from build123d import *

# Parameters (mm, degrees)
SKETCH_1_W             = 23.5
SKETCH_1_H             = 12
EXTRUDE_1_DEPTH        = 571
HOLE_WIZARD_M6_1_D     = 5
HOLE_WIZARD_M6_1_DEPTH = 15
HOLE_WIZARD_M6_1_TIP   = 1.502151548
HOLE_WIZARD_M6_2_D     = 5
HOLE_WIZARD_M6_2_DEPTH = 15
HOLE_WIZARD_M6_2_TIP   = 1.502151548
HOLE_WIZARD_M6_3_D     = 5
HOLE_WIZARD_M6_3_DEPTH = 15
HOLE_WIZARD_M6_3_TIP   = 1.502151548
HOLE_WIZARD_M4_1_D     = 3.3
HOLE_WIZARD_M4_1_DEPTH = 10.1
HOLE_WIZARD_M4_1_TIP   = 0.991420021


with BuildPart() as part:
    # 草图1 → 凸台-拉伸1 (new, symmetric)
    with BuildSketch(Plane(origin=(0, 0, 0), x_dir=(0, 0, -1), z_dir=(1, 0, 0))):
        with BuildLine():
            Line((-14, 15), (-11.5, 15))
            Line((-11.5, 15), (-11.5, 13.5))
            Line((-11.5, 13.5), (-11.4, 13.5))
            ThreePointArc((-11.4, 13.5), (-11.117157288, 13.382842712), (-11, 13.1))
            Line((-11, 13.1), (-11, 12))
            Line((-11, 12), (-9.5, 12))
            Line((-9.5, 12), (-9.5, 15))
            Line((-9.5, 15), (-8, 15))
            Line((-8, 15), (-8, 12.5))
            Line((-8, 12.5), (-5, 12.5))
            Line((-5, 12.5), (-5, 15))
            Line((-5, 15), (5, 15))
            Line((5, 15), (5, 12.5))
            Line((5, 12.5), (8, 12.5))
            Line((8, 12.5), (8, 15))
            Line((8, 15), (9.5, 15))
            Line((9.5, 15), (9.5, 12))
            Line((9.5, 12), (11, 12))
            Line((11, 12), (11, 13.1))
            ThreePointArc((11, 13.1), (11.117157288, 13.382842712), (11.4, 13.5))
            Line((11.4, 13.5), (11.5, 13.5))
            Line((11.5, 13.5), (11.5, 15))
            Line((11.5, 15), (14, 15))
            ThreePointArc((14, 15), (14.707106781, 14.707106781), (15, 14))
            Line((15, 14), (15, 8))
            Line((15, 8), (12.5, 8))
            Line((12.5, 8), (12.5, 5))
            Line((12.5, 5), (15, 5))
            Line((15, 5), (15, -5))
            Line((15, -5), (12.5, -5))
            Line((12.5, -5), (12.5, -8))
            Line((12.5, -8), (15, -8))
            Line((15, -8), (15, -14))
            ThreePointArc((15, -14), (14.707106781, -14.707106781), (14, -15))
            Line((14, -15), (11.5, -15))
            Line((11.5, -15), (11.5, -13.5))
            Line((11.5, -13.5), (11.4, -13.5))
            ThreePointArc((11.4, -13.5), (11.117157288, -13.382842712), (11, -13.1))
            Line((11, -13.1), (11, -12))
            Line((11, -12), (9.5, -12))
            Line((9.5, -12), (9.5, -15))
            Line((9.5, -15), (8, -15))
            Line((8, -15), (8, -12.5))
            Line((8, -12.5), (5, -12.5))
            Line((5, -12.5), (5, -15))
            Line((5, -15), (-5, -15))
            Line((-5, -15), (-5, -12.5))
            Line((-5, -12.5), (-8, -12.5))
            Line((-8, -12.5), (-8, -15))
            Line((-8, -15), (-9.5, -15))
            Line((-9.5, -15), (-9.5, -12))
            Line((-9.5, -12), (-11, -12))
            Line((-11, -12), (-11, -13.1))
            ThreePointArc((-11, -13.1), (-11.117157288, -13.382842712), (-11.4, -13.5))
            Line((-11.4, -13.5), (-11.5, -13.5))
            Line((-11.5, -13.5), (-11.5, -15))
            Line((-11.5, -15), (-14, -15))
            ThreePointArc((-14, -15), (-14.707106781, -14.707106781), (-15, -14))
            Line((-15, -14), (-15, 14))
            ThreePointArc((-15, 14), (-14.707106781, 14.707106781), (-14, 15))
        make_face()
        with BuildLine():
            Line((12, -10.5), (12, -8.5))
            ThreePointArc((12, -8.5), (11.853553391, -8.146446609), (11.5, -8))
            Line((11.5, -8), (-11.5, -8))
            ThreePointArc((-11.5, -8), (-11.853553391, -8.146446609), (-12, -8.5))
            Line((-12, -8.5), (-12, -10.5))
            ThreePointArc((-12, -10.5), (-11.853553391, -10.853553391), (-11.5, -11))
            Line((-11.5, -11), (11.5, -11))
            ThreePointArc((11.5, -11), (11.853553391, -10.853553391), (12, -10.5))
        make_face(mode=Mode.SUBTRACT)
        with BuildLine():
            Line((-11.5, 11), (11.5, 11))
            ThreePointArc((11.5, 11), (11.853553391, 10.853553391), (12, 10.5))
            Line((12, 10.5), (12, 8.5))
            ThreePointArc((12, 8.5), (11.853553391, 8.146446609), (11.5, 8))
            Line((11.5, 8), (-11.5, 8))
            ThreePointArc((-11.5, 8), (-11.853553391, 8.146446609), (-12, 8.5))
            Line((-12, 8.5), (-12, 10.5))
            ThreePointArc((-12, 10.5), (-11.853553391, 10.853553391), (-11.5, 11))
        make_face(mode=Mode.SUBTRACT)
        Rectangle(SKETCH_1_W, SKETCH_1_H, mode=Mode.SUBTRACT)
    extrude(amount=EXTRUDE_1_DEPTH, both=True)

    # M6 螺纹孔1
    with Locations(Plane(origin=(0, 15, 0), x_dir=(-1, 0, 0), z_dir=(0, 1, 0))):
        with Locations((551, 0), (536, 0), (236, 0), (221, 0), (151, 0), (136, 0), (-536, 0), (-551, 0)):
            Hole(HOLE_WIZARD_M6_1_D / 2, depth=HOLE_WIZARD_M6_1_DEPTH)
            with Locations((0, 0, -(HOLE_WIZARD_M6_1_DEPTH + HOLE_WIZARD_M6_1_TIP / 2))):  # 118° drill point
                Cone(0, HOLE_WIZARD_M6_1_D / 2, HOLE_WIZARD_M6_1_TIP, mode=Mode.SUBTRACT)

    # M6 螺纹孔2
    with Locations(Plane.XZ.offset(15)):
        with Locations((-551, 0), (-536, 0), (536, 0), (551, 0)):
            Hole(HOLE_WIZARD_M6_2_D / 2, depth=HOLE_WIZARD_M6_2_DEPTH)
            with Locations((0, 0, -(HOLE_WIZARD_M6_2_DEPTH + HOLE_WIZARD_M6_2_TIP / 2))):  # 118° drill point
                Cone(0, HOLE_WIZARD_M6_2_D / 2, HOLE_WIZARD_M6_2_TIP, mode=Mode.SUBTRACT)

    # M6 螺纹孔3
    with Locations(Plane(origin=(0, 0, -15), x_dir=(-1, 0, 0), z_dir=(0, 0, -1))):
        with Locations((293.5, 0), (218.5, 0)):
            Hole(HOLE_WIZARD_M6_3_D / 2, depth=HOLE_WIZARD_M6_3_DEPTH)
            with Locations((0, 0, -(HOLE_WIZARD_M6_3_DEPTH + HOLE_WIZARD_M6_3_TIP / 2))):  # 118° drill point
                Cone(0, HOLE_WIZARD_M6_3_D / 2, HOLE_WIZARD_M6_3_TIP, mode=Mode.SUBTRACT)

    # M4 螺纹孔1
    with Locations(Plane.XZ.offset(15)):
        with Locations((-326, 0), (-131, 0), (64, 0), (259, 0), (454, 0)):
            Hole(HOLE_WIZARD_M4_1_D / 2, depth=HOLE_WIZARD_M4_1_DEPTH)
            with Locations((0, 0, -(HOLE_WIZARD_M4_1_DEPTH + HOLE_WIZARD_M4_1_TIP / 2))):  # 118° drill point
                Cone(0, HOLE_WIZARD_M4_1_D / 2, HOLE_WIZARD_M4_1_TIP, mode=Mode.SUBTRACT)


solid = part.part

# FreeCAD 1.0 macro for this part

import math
import FreeCAD as App
import Part
import Sketcher
from FreeCAD import Vector

doc = App.newDocument("Part")
body = doc.addObject("PartDesign::Body", "Body")

# Sketch on YZ plane
sketch1 = doc.addObject("Sketcher::SketchObject", "Sketch")
body.addObject(sketch1)
sketch1.AttachmentSupport = (doc.YZ_Plane, [""])
sketch1.MapMode = "FlatFace"
sketch1.addGeometry([
    Part.LineSegment(Vector(15, 11.5, 0), Vector(15, 14, 0)),  # 0
    Part.ArcOfCircle(Part.Circle(Vector(14, 14, 0), Vector(0, 0, 1), 1), math.radians(0), math.radians(90)),  # 1
    Part.LineSegment(Vector(14, 15, 0), Vector(-14, 15, 0)),  # 2
    Part.ArcOfCircle(Part.Circle(Vector(-14, 14, 0), Vector(0, 0, 1), 1), math.radians(90), math.radians(180)),  # 3
    Part.LineSegment(Vector(-15, 14, 0), Vector(-15, 11.5, 0)),  # 4
    Part.LineSegment(Vector(-15, 11.5, 0), Vector(-13.5, 11.5, 0)),  # 5
    Part.LineSegment(Vector(-13.5, 11.5, 0), Vector(-13.5, 11.4, 0)),  # 6
    Part.ArcOfCircle(Part.Circle(Vector(-13.1, 11.4, 0), Vector(0, 0, 1), 0.4), math.radians(-180), math.radians(-90)),  # 7
    Part.LineSegment(Vector(-13.1, 11, 0), Vector(-12, 11, 0)),  # 8
    Part.LineSegment(Vector(-12, 11, 0), Vector(-12, 9.5, 0)),  # 9
    Part.LineSegment(Vector(-12, 9.5, 0), Vector(-15, 9.5, 0)),  # 10
    Part.LineSegment(Vector(-15, 9.5, 0), Vector(-15, 8, 0)),  # 11
    Part.LineSegment(Vector(-15, 8, 0), Vector(-12.5, 8, 0)),  # 12
    Part.LineSegment(Vector(-12.5, 8, 0), Vector(-12.5, 5, 0)),  # 13
    Part.LineSegment(Vector(-12.5, 5, 0), Vector(-15, 5, 0)),  # 14
    Part.LineSegment(Vector(-15, 5, 0), Vector(-15, -5, 0)),  # 15
    Part.LineSegment(Vector(-15, -5, 0), Vector(-12.5, -5, 0)),  # 16
    Part.LineSegment(Vector(-12.5, -5, 0), Vector(-12.5, -8, 0)),  # 17
    Part.LineSegment(Vector(-12.5, -8, 0), Vector(-15, -8, 0)),  # 18
    Part.LineSegment(Vector(-15, -8, 0), Vector(-15, -9.5, 0)),  # 19
    Part.LineSegment(Vector(-15, -9.5, 0), Vector(-12, -9.5, 0)),  # 20
    Part.LineSegment(Vector(-12, -9.5, 0), Vector(-12, -11, 0)),  # 21
    Part.LineSegment(Vector(-12, -11, 0), Vector(-13.1, -11, 0)),  # 22
    Part.ArcOfCircle(Part.Circle(Vector(-13.1, -11.4, 0), Vector(0, 0, 1), 0.4), math.radians(90), math.radians(180)),  # 23
    Part.LineSegment(Vector(-13.5, -11.4, 0), Vector(-13.5, -11.5, 0)),  # 24
    Part.LineSegment(Vector(-13.5, -11.5, 0), Vector(-15, -11.5, 0)),  # 25
    Part.LineSegment(Vector(-15, -11.5, 0), Vector(-15, -14, 0)),  # 26
    Part.ArcOfCircle(Part.Circle(Vector(-14, -14, 0), Vector(0, 0, 1), 1), math.radians(-180), math.radians(-90)),  # 27
    Part.LineSegment(Vector(-14, -15, 0), Vector(-8, -15, 0)),  # 28
    Part.LineSegment(Vector(-8, -15, 0), Vector(-8, -12.5, 0)),  # 29
    Part.LineSegment(Vector(-8, -12.5, 0), Vector(-5, -12.5, 0)),  # 30
    Part.LineSegment(Vector(-5, -12.5, 0), Vector(-5, -15, 0)),  # 31
    Part.LineSegment(Vector(-5, -15, 0), Vector(5, -15, 0)),  # 32
    Part.LineSegment(Vector(5, -15, 0), Vector(5, -12.5, 0)),  # 33
    Part.LineSegment(Vector(5, -12.5, 0), Vector(8, -12.5, 0)),  # 34
    Part.LineSegment(Vector(8, -12.5, 0), Vector(8, -15, 0)),  # 35
    Part.LineSegment(Vector(8, -15, 0), Vector(14, -15, 0)),  # 36
    Part.ArcOfCircle(Part.Circle(Vector(14, -14, 0), Vector(0, 0, 1), 1), math.radians(-90), math.radians(0)),  # 37
    Part.LineSegment(Vector(15, -14, 0), Vector(15, -11.5, 0)),  # 38
    Part.LineSegment(Vector(15, -11.5, 0), Vector(13.5, -11.5, 0)),  # 39
    Part.LineSegment(Vector(13.5, -11.5, 0), Vector(13.5, -11.4, 0)),  # 40
    Part.ArcOfCircle(Part.Circle(Vector(13.1, -11.4, 0), Vector(0, 0, 1), 0.4), math.radians(0), math.radians(90)),  # 41
    Part.LineSegment(Vector(13.1, -11, 0), Vector(12, -11, 0)),  # 42
    Part.LineSegment(Vector(12, -11, 0), Vector(12, -9.5, 0)),  # 43
    Part.LineSegment(Vector(12, -9.5, 0), Vector(15, -9.5, 0)),  # 44
    Part.LineSegment(Vector(15, -9.5, 0), Vector(15, -8, 0)),  # 45
    Part.LineSegment(Vector(15, -8, 0), Vector(12.5, -8, 0)),  # 46
    Part.LineSegment(Vector(12.5, -8, 0), Vector(12.5, -5, 0)),  # 47
    Part.LineSegment(Vector(12.5, -5, 0), Vector(15, -5, 0)),  # 48
    Part.LineSegment(Vector(15, -5, 0), Vector(15, 5, 0)),  # 49
    Part.LineSegment(Vector(15, 5, 0), Vector(12.5, 5, 0)),  # 50
    Part.LineSegment(Vector(12.5, 5, 0), Vector(12.5, 8, 0)),  # 51
    Part.LineSegment(Vector(12.5, 8, 0), Vector(15, 8, 0)),  # 52
    Part.LineSegment(Vector(15, 8, 0), Vector(15, 9.5, 0)),  # 53
    Part.LineSegment(Vector(15, 9.5, 0), Vector(12, 9.5, 0)),  # 54
    Part.LineSegment(Vector(12, 9.5, 0), Vector(12, 11, 0)),  # 55
    Part.LineSegment(Vector(12, 11, 0), Vector(13.1, 11, 0)),  # 56
    Part.ArcOfCircle(Part.Circle(Vector(13.1, 11.4, 0), Vector(0, 0, 1), 0.4), math.radians(-90), math.radians(0)),  # 57
    Part.LineSegment(Vector(13.5, 11.4, 0), Vector(13.5, 11.5, 0)),  # 58
    Part.LineSegment(Vector(13.5, 11.5, 0), Vector(15, 11.5, 0)),  # 59
    Part.ArcOfCircle(Part.Circle(Vector(-10.5, -11.5, 0), Vector(0, 0, 1), 0.5), math.radians(180), math.radians(270)),  # 60
    Part.LineSegment(Vector(-11, -11.5, 0), Vector(-11, 11.5, 0)),  # 61
    Part.ArcOfCircle(Part.Circle(Vector(-10.5, 11.5, 0), Vector(0, 0, 1), 0.5), math.radians(90), math.radians(180)),  # 62
    Part.LineSegment(Vector(-10.5, 12, 0), Vector(-8.5, 12, 0)),  # 63
    Part.ArcOfCircle(Part.Circle(Vector(-8.5, 11.5, 0), Vector(0, 0, 1), 0.5), math.radians(0), math.radians(90)),  # 64
    Part.LineSegment(Vector(-8, 11.5, 0), Vector(-8, -11.5, 0)),  # 65
    Part.ArcOfCircle(Part.Circle(Vector(-8.5, -11.5, 0), Vector(0, 0, 1), 0.5), math.radians(-90), math.radians(0)),  # 66
    Part.LineSegment(Vector(-8.5, -12, 0), Vector(-10.5, -12, 0)),  # 67
    Part.LineSegment(Vector(-6, 11.75, 0), Vector(6, 11.75, 0)),  # 68
    Part.LineSegment(Vector(6, 11.75, 0), Vector(6, -11.75, 0)),  # 69
    Part.LineSegment(Vector(6, -11.75, 0), Vector(-6, -11.75, 0)),  # 70
    Part.LineSegment(Vector(-6, -11.75, 0), Vector(-6, 11.75, 0)),  # 71
    Part.LineSegment(Vector(11, 11.5, 0), Vector(11, -11.5, 0)),  # 72
    Part.ArcOfCircle(Part.Circle(Vector(10.5, -11.5, 0), Vector(0, 0, 1), 0.5), math.radians(-90), math.radians(0)),  # 73
    Part.LineSegment(Vector(10.5, -12, 0), Vector(8.5, -12, 0)),  # 74
    Part.ArcOfCircle(Part.Circle(Vector(8.5, -11.5, 0), Vector(0, 0, 1), 0.5), math.radians(180), math.radians(270)),  # 75
    Part.LineSegment(Vector(8, -11.5, 0), Vector(8, 11.5, 0)),  # 76
    Part.ArcOfCircle(Part.Circle(Vector(8.5, 11.5, 0), Vector(0, 0, 1), 0.5), math.radians(90), math.radians(180)),  # 77
    Part.LineSegment(Vector(8.5, 12, 0), Vector(10.5, 12, 0)),  # 78
    Part.ArcOfCircle(Part.Circle(Vector(10.5, 11.5, 0), Vector(0, 0, 1), 0.5), math.radians(0), math.radians(90)),  # 79
], False)
sketch1.addConstraint([
    Sketcher.Constraint("Tangent", 0, 2, 1, 1),
    Sketcher.Constraint("Tangent", 1, 2, 2, 1),
    Sketcher.Constraint("Tangent", 2, 2, 3, 1),
    Sketcher.Constraint("Tangent", 3, 2, 4, 1),
    Sketcher.Constraint("Coincident", 4, 2, 5, 1),
    Sketcher.Constraint("Coincident", 5, 2, 6, 1),
    Sketcher.Constraint("Tangent", 6, 2, 7, 1),
    Sketcher.Constraint("Tangent", 7, 2, 8, 1),
    Sketcher.Constraint("Coincident", 8, 2, 9, 1),
    Sketcher.Constraint("Coincident", 9, 2, 10, 1),
    Sketcher.Constraint("Coincident", 10, 2, 11, 1),
    Sketcher.Constraint("Coincident", 11, 2, 12, 1),
    Sketcher.Constraint("Coincident", 12, 2, 13, 1),
    Sketcher.Constraint("Coincident", 13, 2, 14, 1),
    Sketcher.Constraint("Coincident", 14, 2, 15, 1),
    Sketcher.Constraint("Coincident", 15, 2, 16, 1),
    Sketcher.Constraint("Coincident", 16, 2, 17, 1),
    Sketcher.Constraint("Coincident", 17, 2, 18, 1),
    Sketcher.Constraint("Coincident", 18, 2, 19, 1),
    Sketcher.Constraint("Coincident", 19, 2, 20, 1),
    Sketcher.Constraint("Coincident", 20, 2, 21, 1),
    Sketcher.Constraint("Coincident", 21, 2, 22, 1),
    Sketcher.Constraint("Tangent", 22, 2, 23, 1),
    Sketcher.Constraint("Tangent", 23, 2, 24, 1),
    Sketcher.Constraint("Coincident", 24, 2, 25, 1),
    Sketcher.Constraint("Coincident", 25, 2, 26, 1),
    Sketcher.Constraint("Tangent", 26, 2, 27, 1),
    Sketcher.Constraint("Tangent", 27, 2, 28, 1),
    Sketcher.Constraint("Coincident", 28, 2, 29, 1),
    Sketcher.Constraint("Coincident", 29, 2, 30, 1),
    Sketcher.Constraint("Coincident", 30, 2, 31, 1),
    Sketcher.Constraint("Coincident", 31, 2, 32, 1),
    Sketcher.Constraint("Coincident", 32, 2, 33, 1),
    Sketcher.Constraint("Coincident", 33, 2, 34, 1),
    Sketcher.Constraint("Coincident", 34, 2, 35, 1),
    Sketcher.Constraint("Coincident", 35, 2, 36, 1),
    Sketcher.Constraint("Tangent", 36, 2, 37, 1),
    Sketcher.Constraint("Tangent", 37, 2, 38, 1),
    Sketcher.Constraint("Coincident", 38, 2, 39, 1),
    Sketcher.Constraint("Coincident", 39, 2, 40, 1),
    Sketcher.Constraint("Tangent", 40, 2, 41, 1),
    Sketcher.Constraint("Tangent", 41, 2, 42, 1),
    Sketcher.Constraint("Coincident", 42, 2, 43, 1),
    Sketcher.Constraint("Coincident", 43, 2, 44, 1),
    Sketcher.Constraint("Coincident", 44, 2, 45, 1),
    Sketcher.Constraint("Coincident", 45, 2, 46, 1),
    Sketcher.Constraint("Coincident", 46, 2, 47, 1),
    Sketcher.Constraint("Coincident", 47, 2, 48, 1),
    Sketcher.Constraint("Coincident", 48, 2, 49, 1),
    Sketcher.Constraint("Coincident", 49, 2, 50, 1),
    Sketcher.Constraint("Coincident", 50, 2, 51, 1),
    Sketcher.Constraint("Coincident", 51, 2, 52, 1),
    Sketcher.Constraint("Coincident", 52, 2, 53, 1),
    Sketcher.Constraint("Coincident", 53, 2, 54, 1),
    Sketcher.Constraint("Coincident", 54, 2, 55, 1),
    Sketcher.Constraint("Coincident", 55, 2, 56, 1),
    Sketcher.Constraint("Tangent", 56, 2, 57, 1),
    Sketcher.Constraint("Tangent", 57, 2, 58, 1),
    Sketcher.Constraint("Coincident", 58, 2, 59, 1),
    Sketcher.Constraint("Coincident", 59, 2, 0, 1),
    Sketcher.Constraint("Tangent", 60, 1, 61, 1),
    Sketcher.Constraint("Tangent", 61, 2, 62, 2),
    Sketcher.Constraint("Tangent", 62, 1, 63, 1),
    Sketcher.Constraint("Tangent", 63, 2, 64, 2),
    Sketcher.Constraint("Tangent", 64, 1, 65, 1),
    Sketcher.Constraint("Tangent", 65, 2, 66, 2),
    Sketcher.Constraint("Tangent", 66, 1, 67, 1),
    Sketcher.Constraint("Tangent", 67, 2, 60, 2),
    Sketcher.Constraint("Coincident", 68, 2, 69, 1),
    Sketcher.Constraint("Coincident", 69, 2, 70, 1),
    Sketcher.Constraint("Coincident", 70, 2, 71, 1),
    Sketcher.Constraint("Coincident", 71, 2, 68, 1),
    Sketcher.Constraint("Tangent", 72, 2, 73, 2),
    Sketcher.Constraint("Tangent", 73, 1, 74, 1),
    Sketcher.Constraint("Tangent", 74, 2, 75, 2),
    Sketcher.Constraint("Tangent", 75, 1, 76, 1),
    Sketcher.Constraint("Tangent", 76, 2, 77, 2),
    Sketcher.Constraint("Tangent", 77, 1, 78, 1),
    Sketcher.Constraint("Tangent", 78, 2, 79, 2),
    Sketcher.Constraint("Tangent", 79, 1, 72, 1),
    Sketcher.Constraint("Vertical", 0),
    Sketcher.Constraint("Horizontal", 2),
    Sketcher.Constraint("Vertical", 4),
    Sketcher.Constraint("Horizontal", 5),
    Sketcher.Constraint("Vertical", 6),
    Sketcher.Constraint("Horizontal", 8),
    Sketcher.Constraint("Vertical", 9),
    Sketcher.Constraint("Horizontal", 10),
    Sketcher.Constraint("Vertical", 11),
    Sketcher.Constraint("Horizontal", 12),
    Sketcher.Constraint("Vertical", 13),
    Sketcher.Constraint("Horizontal", 14),
    Sketcher.Constraint("Vertical", 15),
    Sketcher.Constraint("Horizontal", 16),
    Sketcher.Constraint("Vertical", 17),
    Sketcher.Constraint("Horizontal", 18),
    Sketcher.Constraint("Vertical", 19),
    Sketcher.Constraint("Horizontal", 20),
    Sketcher.Constraint("Vertical", 21),
    Sketcher.Constraint("Horizontal", 22),
    Sketcher.Constraint("Vertical", 24),
    Sketcher.Constraint("Horizontal", 25),
    Sketcher.Constraint("Vertical", 26),
    Sketcher.Constraint("Horizontal", 28),
    Sketcher.Constraint("Vertical", 29),
    Sketcher.Constraint("Horizontal", 30),
    Sketcher.Constraint("Vertical", 31),
    Sketcher.Constraint("Horizontal", 32),
    Sketcher.Constraint("Vertical", 33),
    Sketcher.Constraint("Horizontal", 34),
    Sketcher.Constraint("Vertical", 35),
    Sketcher.Constraint("Horizontal", 36),
    Sketcher.Constraint("Vertical", 38),
    Sketcher.Constraint("Horizontal", 39),
    Sketcher.Constraint("Vertical", 40),
    Sketcher.Constraint("Horizontal", 42),
    Sketcher.Constraint("Vertical", 43),
    Sketcher.Constraint("Horizontal", 44),
    Sketcher.Constraint("Vertical", 45),
    Sketcher.Constraint("Horizontal", 46),
    Sketcher.Constraint("Vertical", 47),
    Sketcher.Constraint("Horizontal", 48),
    Sketcher.Constraint("Vertical", 49),
    Sketcher.Constraint("Horizontal", 50),
    Sketcher.Constraint("Vertical", 51),
    Sketcher.Constraint("Horizontal", 52),
    Sketcher.Constraint("Vertical", 53),
    Sketcher.Constraint("Horizontal", 54),
    Sketcher.Constraint("Vertical", 55),
    Sketcher.Constraint("Horizontal", 56),
    Sketcher.Constraint("Vertical", 58),
    Sketcher.Constraint("Horizontal", 59),
    Sketcher.Constraint("Vertical", 61),
    Sketcher.Constraint("Horizontal", 63),
    Sketcher.Constraint("Vertical", 65),
    Sketcher.Constraint("Horizontal", 67),
    Sketcher.Constraint("Horizontal", 68),
    Sketcher.Constraint("Vertical", 69),
    Sketcher.Constraint("Horizontal", 70),
    Sketcher.Constraint("Vertical", 71),
    Sketcher.Constraint("Vertical", 72),
    Sketcher.Constraint("Horizontal", 74),
    Sketcher.Constraint("Vertical", 76),
    Sketcher.Constraint("Horizontal", 78),
    Sketcher.Constraint("Equal", 1, 3),
    Sketcher.Constraint("Equal", 7, 23),
    Sketcher.Constraint("Equal", 3, 27),
    Sketcher.Constraint("Equal", 27, 37),
    Sketcher.Constraint("Equal", 23, 41),
    Sketcher.Constraint("Equal", 41, 57),
    Sketcher.Constraint("Equal", 60, 62),
    Sketcher.Constraint("Equal", 62, 64),
    Sketcher.Constraint("Equal", 64, 66),
    Sketcher.Constraint("Equal", 66, 73),
    Sketcher.Constraint("Equal", 73, 75),
    Sketcher.Constraint("Equal", 75, 77),
    Sketcher.Constraint("Equal", 77, 79),
    Sketcher.Constraint("Symmetric", 1, 3, 27, 3, -1, 1),
    Sketcher.Constraint("Symmetric", 3, 3, 37, 3, -1, 1),
    Sketcher.Constraint("Symmetric", 7, 3, 41, 3, -1, 1),
    Sketcher.Constraint("Symmetric", 23, 3, 57, 3, -1, 1),
    Sketcher.Constraint("Symmetric", 62, 3, 73, 3, -1, 1),
    Sketcher.Constraint("Symmetric", 66, 3, 77, 3, -1, 1),
    Sketcher.Constraint("Symmetric", 9, 2, 43, 2, -1, 1),
    Sketcher.Constraint("Symmetric", 11, 2, 45, 2, -1, 1),
    Sketcher.Constraint("Symmetric", 13, 2, 47, 2, -1, 1),
    Sketcher.Constraint("Symmetric", 15, 2, 49, 2, -1, 1),
    Sketcher.Constraint("Symmetric", 17, 2, 51, 2, -1, 1),
    Sketcher.Constraint("Symmetric", 19, 2, 53, 2, -1, 1),
    Sketcher.Constraint("Symmetric", 68, 2, 70, 2, -1, 1),
    Sketcher.Constraint("Symmetric", 23, 3, 41, 3, -2),
    Sketcher.Constraint("Symmetric", 30, 2, 33, 2, -2),
    Sketcher.Constraint("Symmetric", 25, 2, 38, 2, -2),
    Sketcher.Constraint("Symmetric", 20, 2, 43, 2, -2),
    Sketcher.Constraint("Symmetric", 18, 2, 45, 2, -2),
    Sketcher.Constraint("Symmetric", 16, 2, 47, 2, -2),
    Sketcher.Constraint("Horizontal", 66, 3, 73, 3),
    Sketcher.Constraint("Horizontal", 79, 3, 4, 2),
    Sketcher.Constraint("Horizontal", 75, 3, 24, 2),
    Sketcher.Constraint("Horizontal", 28, 2, 31, 2),
    Sketcher.Constraint("Horizontal", 5, 2, 58, 2),
    Sketcher.Constraint("Vertical", 4, 2, 10, 2),
    Sketcher.Constraint("Vertical", 11, 2, 14, 2),
    Sketcher.Constraint("Vertical", 43, 2, 54, 2),
    Sketcher.Constraint("Vertical", 29, 2, 64, 1),
    Sketcher.Constraint("Vertical", 35, 2, 75, 1),
    Sketcher.Constraint("Equal", 20, 30),
    Sketcher.Constraint("Equal", 52, 0),
    Sketcher.Constraint("Equal", 59, 9),
    Sketcher.Constraint("Equal", 9, 11),
    Sketcher.Constraint("Equal", 54, 13),
    Sketcher.Constraint("Equal", 32, 15),
    Sketcher.Constraint("Equal", 26, 29),
    Sketcher.Constraint("Radius", 1, 1.0),
    Sketcher.Constraint("Radius", 7, 0.4),
    Sketcher.Constraint("Radius", 60, 0.5),
    Sketcher.Constraint("DistanceX", 2, 2, 2, 1, 28.0),
    Sketcher.Constraint("DistanceX", 10, 2, 10, 1, 3.0),
    Sketcher.Constraint("DistanceX", 28, 1, 28, 2, 6.0),
    Sketcher.Constraint("DistanceX", 63, 1, 63, 2, 2.0),
    Sketcher.Constraint("DistanceX", 68, 1, 68, 2, 12.0),
    Sketcher.Constraint("DistanceY", 61, 1, 61, 2, 23.0),
    Sketcher.Constraint("DistanceX", 5, 1, 5, 2, 1.5),
    Sketcher.Constraint("DistanceX", 12, 1, 12, 2, 2.5),
    Sketcher.Constraint("DistanceY", 69, 2, 69, 1, 23.5),
])
pad1 = doc.addObject("PartDesign::Pad", "Pad")
body.addObject(pad1)
pad1.Profile = sketch1
pad1.Length = 1142
pad1.Midplane = True

# Sketch on XZ plane
sketch2 = doc.addObject("Sketcher::SketchObject", "Sketch001")
body.addObject(sketch2)
sketch2.AttachmentSupport = (doc.XZ_Plane, [""])
sketch2.MapMode = "FlatFace"
sketch2.AttachmentOffset = App.Placement(Vector(0, 0, -15), App.Rotation())
sketch2.addGeometry([
    Part.Circle(Vector(-551, 0, 0), Vector(0, 0, 1), 2.5),  # 0
    Part.Circle(Vector(-536, 0, 0), Vector(0, 0, 1), 2.5),  # 1
    Part.Circle(Vector(-236, 0, 0), Vector(0, 0, 1), 2.5),  # 2
    Part.Circle(Vector(-221, 0, 0), Vector(0, 0, 1), 2.5),  # 3
    Part.Circle(Vector(-151, 0, 0), Vector(0, 0, 1), 2.5),  # 4
    Part.Circle(Vector(-136, 0, 0), Vector(0, 0, 1), 2.5),  # 5
    Part.Circle(Vector(536, 0, 0), Vector(0, 0, 1), 2.5),  # 6
    Part.Circle(Vector(551, 0, 0), Vector(0, 0, 1), 2.5),  # 7
], False)
sketch2.addConstraint([
    Sketcher.Constraint("Equal", 0, 1),
    Sketcher.Constraint("Equal", 1, 2),
    Sketcher.Constraint("Equal", 2, 3),
    Sketcher.Constraint("Equal", 3, 4),
    Sketcher.Constraint("Equal", 4, 5),
    Sketcher.Constraint("Equal", 5, 6),
    Sketcher.Constraint("Equal", 6, 7),
    Sketcher.Constraint("Symmetric", 1, 3, 6, 3, -1, 1),
    Sketcher.Constraint("Symmetric", 0, 3, 7, 3, -1, 1),
    Sketcher.Constraint("PointOnObject", 0, 3, -1),
    Sketcher.Constraint("PointOnObject", 1, 3, -1),
    Sketcher.Constraint("PointOnObject", 2, 3, -1),
    Sketcher.Constraint("PointOnObject", 3, 3, -1),
    Sketcher.Constraint("PointOnObject", 4, 3, -1),
    Sketcher.Constraint("PointOnObject", 5, 3, -1),
    Sketcher.Constraint("Diameter", 0, 5.0),
    Sketcher.Constraint("DistanceX", 0, 3, -1, 1, 551.0),
    Sketcher.Constraint("DistanceX", 1, 3, -1, 1, 536.0),
    Sketcher.Constraint("DistanceX", 2, 3, -1, 1, 236.0),
    Sketcher.Constraint("DistanceX", 3, 3, -1, 1, 221.0),
    Sketcher.Constraint("DistanceX", 4, 3, -1, 1, 151.0),
    Sketcher.Constraint("DistanceX", 5, 3, -1, 1, 136.0),
])
doc.recompute()
hole = doc.addObject("PartDesign::Hole", "Hole")
body.addObject(hole)
hole.Profile = sketch2
hole.ThreadType = "None"
hole.Diameter = 5
hole.DepthType = "Dimension"
hole.Depth = 15
hole.DrillPoint = "Angled"
hole.DrillPointAngle = 118
hole.Reversed = True

# Sketch on XZ plane
sketch3 = doc.addObject("Sketcher::SketchObject", "Sketch002")
body.addObject(sketch3)
sketch3.AttachmentSupport = (doc.XZ_Plane, [""])
sketch3.MapMode = "FlatFace"
sketch3.AttachmentOffset = App.Placement(Vector(0, 0, 15), App.Rotation())
sketch3.addGeometry([
    Part.Circle(Vector(-551, 0, 0), Vector(0, 0, 1), 2.5),
    Part.Circle(Vector(-536, 0, 0), Vector(0, 0, 1), 2.5),
    Part.Circle(Vector(536, 0, 0), Vector(0, 0, 1), 2.5),
    Part.Circle(Vector(551, 0, 0), Vector(0, 0, 1), 2.5),
], False)
sketch3.addConstraint([
    Sketcher.Constraint("Equal", 0, 1),
    Sketcher.Constraint("Equal", 1, 2),
    Sketcher.Constraint("Equal", 2, 3),
    Sketcher.Constraint("Symmetric", 1, 3, 2, 3, -1, 1),
    Sketcher.Constraint("Symmetric", 0, 3, 3, 3, -1, 1),
    Sketcher.Constraint("PointOnObject", 0, 3, -1),
    Sketcher.Constraint("PointOnObject", 1, 3, -1),
    Sketcher.Constraint("Diameter", 0, 5.0),
    Sketcher.Constraint("DistanceX", 0, 3, -1, 1, 551.0),
    Sketcher.Constraint("DistanceX", 1, 3, -1, 1, 536.0),
])
doc.recompute()
hole2 = doc.addObject("PartDesign::Hole", "Hole001")
body.addObject(hole2)
hole2.Profile = sketch3
hole2.ThreadType = "None"
hole2.Diameter = 5
hole2.DepthType = "Dimension"
hole2.Depth = 15
hole2.DrillPoint = "Angled"
hole2.DrillPointAngle = 118

# Sketch on XY plane
sketch4 = doc.addObject("Sketcher::SketchObject", "Sketch003")
body.addObject(sketch4)
sketch4.AttachmentSupport = (doc.XY_Plane, [""])
sketch4.MapMode = "FlatFace"
sketch4.AttachmentOffset = App.Placement(Vector(0, 0, -15), App.Rotation())
sketch4.addGeometry([
    Part.Circle(Vector(-293.5, 0, 0), Vector(0, 0, 1), 2.5),
    Part.Circle(Vector(-218.5, 0, 0), Vector(0, 0, 1), 2.5),
], False)
sketch4.addConstraint([
    Sketcher.Constraint("Equal", 0, 1),
    Sketcher.Constraint("PointOnObject", 0, 3, -1),
    Sketcher.Constraint("PointOnObject", 1, 3, -1),
    Sketcher.Constraint("Diameter", 0, 5.0),
    Sketcher.Constraint("DistanceX", 0, 3, 1, 3, 75.0),
    Sketcher.Constraint("DistanceX", 0, 3, -1, 1, 293.5),
])
doc.recompute()
hole3 = doc.addObject("PartDesign::Hole", "Hole002")
body.addObject(hole3)
hole3.Profile = sketch4
hole3.ThreadType = "None"
hole3.Diameter = 5
hole3.DepthType = "Dimension"
hole3.Depth = 15
hole3.DrillPoint = "Angled"
hole3.DrillPointAngle = 118
hole3.Reversed = True

# Sketch on XZ plane
sketch5 = doc.addObject("Sketcher::SketchObject", "Sketch004")
body.addObject(sketch5)
sketch5.AttachmentSupport = (doc.XZ_Plane, [""])
sketch5.MapMode = "FlatFace"
sketch5.AttachmentOffset = App.Placement(Vector(0, 0, 15), App.Rotation())
sketch5.addGeometry([
    Part.Circle(Vector(-326, 0, 0), Vector(0, 0, 1), 1.6),  # 0
    Part.Circle(Vector(-131, 0, 0), Vector(0, 0, 1), 1.6),  # 1
    Part.Circle(Vector(64, 0, 0), Vector(0, 0, 1), 1.6),  # 2
    Part.Circle(Vector(259, 0, 0), Vector(0, 0, 1), 1.6),  # 3
    Part.Circle(Vector(454, 0, 0), Vector(0, 0, 1), 1.6),  # 4
], False)
sketch5.addConstraint([
    Sketcher.Constraint("Equal", 0, 1),
    Sketcher.Constraint("Equal", 1, 2),
    Sketcher.Constraint("Equal", 2, 3),
    Sketcher.Constraint("Equal", 3, 4),
    Sketcher.Constraint("PointOnObject", 0, 3, -1),
    Sketcher.Constraint("PointOnObject", 1, 3, -1),
    Sketcher.Constraint("PointOnObject", 2, 3, -1),
    Sketcher.Constraint("PointOnObject", 3, 3, -1),
    Sketcher.Constraint("PointOnObject", 4, 3, -1),
    Sketcher.Constraint("Diameter", 0, 3.3),
    Sketcher.Constraint("DistanceX", 0, 3, -1, 1, 326.0),
    Sketcher.Constraint("DistanceX", 1, 3, -1, 1, 131.0),
    Sketcher.Constraint("DistanceX", -1, 1, 2, 3, 64.0),
    Sketcher.Constraint("DistanceX", -1, 1, 3, 3, 259.0),
    Sketcher.Constraint("DistanceX", -1, 1, 4, 3, 454.0),
])
doc.recompute()
hole4 = doc.addObject("PartDesign::Hole", "Hole003")
body.addObject(hole4)
hole4.Profile = sketch5
hole4.ThreadType = "None"
hole4.Diameter = 3.3
hole4.DepthType = "Dimension"
hole4.Depth = 10.1
hole4.DrillPoint = "Angled"
hole4.DrillPointAngle = 118

doc.recompute()
